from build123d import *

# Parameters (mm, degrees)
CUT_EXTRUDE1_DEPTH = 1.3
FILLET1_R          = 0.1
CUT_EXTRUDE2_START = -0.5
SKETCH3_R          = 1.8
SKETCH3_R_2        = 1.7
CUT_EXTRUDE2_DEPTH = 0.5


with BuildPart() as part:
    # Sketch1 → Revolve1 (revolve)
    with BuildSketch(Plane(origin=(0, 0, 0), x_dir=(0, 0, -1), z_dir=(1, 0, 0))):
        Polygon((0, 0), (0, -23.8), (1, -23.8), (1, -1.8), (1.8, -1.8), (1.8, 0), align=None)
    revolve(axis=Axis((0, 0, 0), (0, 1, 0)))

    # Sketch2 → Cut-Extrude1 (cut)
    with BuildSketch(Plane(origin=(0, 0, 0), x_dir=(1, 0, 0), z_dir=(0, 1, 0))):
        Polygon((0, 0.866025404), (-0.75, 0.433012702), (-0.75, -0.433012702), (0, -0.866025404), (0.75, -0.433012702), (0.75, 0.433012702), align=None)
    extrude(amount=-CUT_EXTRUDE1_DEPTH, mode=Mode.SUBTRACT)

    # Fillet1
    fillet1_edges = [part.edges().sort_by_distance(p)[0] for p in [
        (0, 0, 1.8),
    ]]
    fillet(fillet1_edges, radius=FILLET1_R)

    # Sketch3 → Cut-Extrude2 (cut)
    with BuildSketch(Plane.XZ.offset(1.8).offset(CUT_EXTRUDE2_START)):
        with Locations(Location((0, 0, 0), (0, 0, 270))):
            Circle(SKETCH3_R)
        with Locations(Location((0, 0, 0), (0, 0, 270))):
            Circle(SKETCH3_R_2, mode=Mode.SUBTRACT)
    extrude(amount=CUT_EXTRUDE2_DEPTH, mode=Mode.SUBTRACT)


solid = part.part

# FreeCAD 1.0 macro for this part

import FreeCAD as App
import Part
import Sketcher
Q = App.Units.Quantity


def edges_at(feature, points):
    """Names of the edges that pass closest to the given points."""
    edges = feature.Shape.Edges
    near = lambda p: min(range(len(edges)), key=lambda i: edges[i].distToShape(Part.Vertex(*p))[0])
    return sorted({f"Edge{near(p) + 1}" for p in points})

doc = App.newDocument("Part")
body = doc.addObject("PartDesign::Body", "Body")

sketch1 = body.newObject("Sketcher::SketchObject", "Sketch")
sketch1.AttachmentSupport = (doc.getObject("YZ_Plane"), [""])
sketch1.MapMode = "FlatFace"
sketch1.addGeometry(Part.LineSegment(App.Vector(0, 0, 0), App.Vector(-23.8, 0, 0)), False)
sketch1.addGeometry(Part.LineSegment(App.Vector(-23.8, 0, 0), App.Vector(-23.8, -1, 0)), False)
sketch1.addGeometry(Part.LineSegment(App.Vector(-23.8, -1, 0), App.Vector(-1.8, -1, 0)), False)
sketch1.addGeometry(Part.LineSegment(App.Vector(-1.8, -1, 0), App.Vector(-1.8, -1.8, 0)), False)
sketch1.addGeometry(Part.LineSegment(App.Vector(-1.8, -1.8, 0), App.Vector(0, -1.8, 0)), False)
sketch1.addGeometry(Part.LineSegment(App.Vector(0, -1.8, 0), App.Vector(0, 0, 0)), False)
sketch1.addConstraint(Sketcher.Constraint("Coincident", 0, 2, 1, 1))
sketch1.addConstraint(Sketcher.Constraint("Coincident", 1, 2, 2, 1))
sketch1.addConstraint(Sketcher.Constraint("Coincident", 2, 2, 3, 1))
sketch1.addConstraint(Sketcher.Constraint("Coincident", 3, 2, 4, 1))
sketch1.addConstraint(Sketcher.Constraint("Coincident", 4, 2, 5, 1))
sketch1.addConstraint(Sketcher.Constraint("Coincident", 5, 2, 0, 1))
sketch1.addConstraint(Sketcher.Constraint("Horizontal", 0))
sketch1.addConstraint(Sketcher.Constraint("Vertical", 1))
sketch1.addConstraint(Sketcher.Constraint("Horizontal", 2))
sketch1.addConstraint(Sketcher.Constraint("Vertical", 3))
sketch1.addConstraint(Sketcher.Constraint("Horizontal", 4))
sketch1.addConstraint(Sketcher.Constraint("Vertical", 5))
sketch1.addConstraint(Sketcher.Constraint("Coincident", 5, 2, -1, 1))
sketch1.addConstraint(Sketcher.Constraint("Equal", 4, 5))
sketch1.addConstraint(Sketcher.Constraint("DistanceX", 2, 1, 2, 2, Q("22 mm")))
sketch1.addConstraint(Sketcher.Constraint("DistanceY", 1, 2, 1, 1, Q("1 mm")))
sketch1.addConstraint(Sketcher.Constraint("DistanceX", 0, 2, 0, 1, Q("23.8 mm")))
revolution = body.newObject("PartDesign::Revolution", "Revolution")
revolution.Profile = sketch1
revolution.ReferenceAxis = (sketch1, ["H_Axis"])
revolution.Angle = 360

sketch2 = body.newObject("Sketcher::SketchObject", "Sketch001")
sketch2.AttachmentSupport = (doc.getObject("XZ_Plane"), [""])
sketch2.MapMode = "FlatFace"
sketch2.addGeometry(Part.LineSegment(App.Vector(0, -0.9, 0), App.Vector(-0.8, -0.4, 0)), False)
sketch2.addGeometry(Part.LineSegment(App.Vector(-0.8, -0.4, 0), App.Vector(-0.8, 0.4, 0)), False)
sketch2.addGeometry(Part.LineSegment(App.Vector(-0.8, 0.4, 0), App.Vector(0, 0.9, 0)), False)
sketch2.addGeometry(Part.LineSegment(App.Vector(0, 0.9, 0), App.Vector(0.8, 0.4, 0)), False)
sketch2.addGeometry(Part.LineSegment(App.Vector(0.8, 0.4, 0), App.Vector(0.8, -0.4, 0)), False)
sketch2.addGeometry(Part.LineSegment(App.Vector(0.8, -0.4, 0), App.Vector(0, -0.9, 0)), False)
sketch2.addConstraint(Sketcher.Constraint("Coincident", 0, 2, 1, 1))
sketch2.addConstraint(Sketcher.Constraint("Coincident", 1, 2, 2, 1))
sketch2.addConstraint(Sketcher.Constraint("Coincident", 2, 2, 3, 1))
sketch2.addConstraint(Sketcher.Constraint("Coincident", 3, 2, 4, 1))
sketch2.addConstraint(Sketcher.Constraint("Coincident", 4, 2, 5, 1))
sketch2.addConstraint(Sketcher.Constraint("Coincident", 5, 2, 0, 1))
sketch2.addConstraint(Sketcher.Constraint("Vertical", 1))
sketch2.addConstraint(Sketcher.Constraint("Vertical", 4))
sketch2.addConstraint(Sketcher.Constraint("Symmetric", 0, 2, 3, 2, -1, 1))
sketch2.addConstraint(Sketcher.Constraint("Symmetric", 2, 2, 5, 2, -1, 1))
sketch2.addConstraint(Sketcher.Constraint("PointOnObject", 2, 2, -2))
sketch2.addConstraint(Sketcher.Constraint("Parallel", 2, 5))
sketch2.addConstraint(Sketcher.Constraint("Horizontal", 1, 2, 3, 2))
sketch2.addConstraint(Sketcher.Constraint("Angle", 0, Q("150 deg")))
sketch2.addConstraint(Sketcher.Constraint("DistanceX", 1, 2, 3, 2, Q("1.5 mm")))
sketch2.addConstraint(Sketcher.Constraint("DistanceY", 1, 1, 1, 2, Q("0.866025 mm")))
pocket1 = body.newObject("PartDesign::Pocket", "Pocket")
pocket1.Profile = sketch2
pocket1.Length = 1.3
pocket1.Reversed = True
doc.recompute()

fillet = body.newObject("PartDesign::Fillet", "Fillet")
fillet.Base = (pocket1, edges_at(pocket1, [(0, 0, 1.8)]))
fillet.Radius = 0.1

sketch3 = body.newObject("Sketcher::SketchObject", "Sketch002")
sketch3.AttachmentSupport = (doc.getObject("XZ_Plane"), [""])
sketch3.MapMode = "FlatFace"
sketch3.AttachmentOffset = App.Placement(App.Vector(0, 0, 1.3), App.Rotation())
sketch3.addGeometry(Part.Circle(App.Vector(0, 0, 0), App.Vector(0, 0, 1), 1.8), False)
sketch3.addGeometry(Part.Circle(App.Vector(0, 0, 0), App.Vector(0, 0, 1), 1.7), False)
sketch3.addConstraint(Sketcher.Constraint("Coincident", 0, 3, -1, 1))
sketch3.addConstraint(Sketcher.Constraint("Coincident", 1, 3, -1, 1))
sketch3.addConstraint(Sketcher.Constraint("Diameter", 0, Q("3.6 mm")))
sketch3.addConstraint(Sketcher.Constraint("Diameter", 1, Q("3.4 mm")))
pocket2 = body.newObject("PartDesign::Pocket", "Pocket001")
pocket2.Profile = sketch3
pocket2.Length = 0.5
pocket2.Reversed = True

doc.recompute()
